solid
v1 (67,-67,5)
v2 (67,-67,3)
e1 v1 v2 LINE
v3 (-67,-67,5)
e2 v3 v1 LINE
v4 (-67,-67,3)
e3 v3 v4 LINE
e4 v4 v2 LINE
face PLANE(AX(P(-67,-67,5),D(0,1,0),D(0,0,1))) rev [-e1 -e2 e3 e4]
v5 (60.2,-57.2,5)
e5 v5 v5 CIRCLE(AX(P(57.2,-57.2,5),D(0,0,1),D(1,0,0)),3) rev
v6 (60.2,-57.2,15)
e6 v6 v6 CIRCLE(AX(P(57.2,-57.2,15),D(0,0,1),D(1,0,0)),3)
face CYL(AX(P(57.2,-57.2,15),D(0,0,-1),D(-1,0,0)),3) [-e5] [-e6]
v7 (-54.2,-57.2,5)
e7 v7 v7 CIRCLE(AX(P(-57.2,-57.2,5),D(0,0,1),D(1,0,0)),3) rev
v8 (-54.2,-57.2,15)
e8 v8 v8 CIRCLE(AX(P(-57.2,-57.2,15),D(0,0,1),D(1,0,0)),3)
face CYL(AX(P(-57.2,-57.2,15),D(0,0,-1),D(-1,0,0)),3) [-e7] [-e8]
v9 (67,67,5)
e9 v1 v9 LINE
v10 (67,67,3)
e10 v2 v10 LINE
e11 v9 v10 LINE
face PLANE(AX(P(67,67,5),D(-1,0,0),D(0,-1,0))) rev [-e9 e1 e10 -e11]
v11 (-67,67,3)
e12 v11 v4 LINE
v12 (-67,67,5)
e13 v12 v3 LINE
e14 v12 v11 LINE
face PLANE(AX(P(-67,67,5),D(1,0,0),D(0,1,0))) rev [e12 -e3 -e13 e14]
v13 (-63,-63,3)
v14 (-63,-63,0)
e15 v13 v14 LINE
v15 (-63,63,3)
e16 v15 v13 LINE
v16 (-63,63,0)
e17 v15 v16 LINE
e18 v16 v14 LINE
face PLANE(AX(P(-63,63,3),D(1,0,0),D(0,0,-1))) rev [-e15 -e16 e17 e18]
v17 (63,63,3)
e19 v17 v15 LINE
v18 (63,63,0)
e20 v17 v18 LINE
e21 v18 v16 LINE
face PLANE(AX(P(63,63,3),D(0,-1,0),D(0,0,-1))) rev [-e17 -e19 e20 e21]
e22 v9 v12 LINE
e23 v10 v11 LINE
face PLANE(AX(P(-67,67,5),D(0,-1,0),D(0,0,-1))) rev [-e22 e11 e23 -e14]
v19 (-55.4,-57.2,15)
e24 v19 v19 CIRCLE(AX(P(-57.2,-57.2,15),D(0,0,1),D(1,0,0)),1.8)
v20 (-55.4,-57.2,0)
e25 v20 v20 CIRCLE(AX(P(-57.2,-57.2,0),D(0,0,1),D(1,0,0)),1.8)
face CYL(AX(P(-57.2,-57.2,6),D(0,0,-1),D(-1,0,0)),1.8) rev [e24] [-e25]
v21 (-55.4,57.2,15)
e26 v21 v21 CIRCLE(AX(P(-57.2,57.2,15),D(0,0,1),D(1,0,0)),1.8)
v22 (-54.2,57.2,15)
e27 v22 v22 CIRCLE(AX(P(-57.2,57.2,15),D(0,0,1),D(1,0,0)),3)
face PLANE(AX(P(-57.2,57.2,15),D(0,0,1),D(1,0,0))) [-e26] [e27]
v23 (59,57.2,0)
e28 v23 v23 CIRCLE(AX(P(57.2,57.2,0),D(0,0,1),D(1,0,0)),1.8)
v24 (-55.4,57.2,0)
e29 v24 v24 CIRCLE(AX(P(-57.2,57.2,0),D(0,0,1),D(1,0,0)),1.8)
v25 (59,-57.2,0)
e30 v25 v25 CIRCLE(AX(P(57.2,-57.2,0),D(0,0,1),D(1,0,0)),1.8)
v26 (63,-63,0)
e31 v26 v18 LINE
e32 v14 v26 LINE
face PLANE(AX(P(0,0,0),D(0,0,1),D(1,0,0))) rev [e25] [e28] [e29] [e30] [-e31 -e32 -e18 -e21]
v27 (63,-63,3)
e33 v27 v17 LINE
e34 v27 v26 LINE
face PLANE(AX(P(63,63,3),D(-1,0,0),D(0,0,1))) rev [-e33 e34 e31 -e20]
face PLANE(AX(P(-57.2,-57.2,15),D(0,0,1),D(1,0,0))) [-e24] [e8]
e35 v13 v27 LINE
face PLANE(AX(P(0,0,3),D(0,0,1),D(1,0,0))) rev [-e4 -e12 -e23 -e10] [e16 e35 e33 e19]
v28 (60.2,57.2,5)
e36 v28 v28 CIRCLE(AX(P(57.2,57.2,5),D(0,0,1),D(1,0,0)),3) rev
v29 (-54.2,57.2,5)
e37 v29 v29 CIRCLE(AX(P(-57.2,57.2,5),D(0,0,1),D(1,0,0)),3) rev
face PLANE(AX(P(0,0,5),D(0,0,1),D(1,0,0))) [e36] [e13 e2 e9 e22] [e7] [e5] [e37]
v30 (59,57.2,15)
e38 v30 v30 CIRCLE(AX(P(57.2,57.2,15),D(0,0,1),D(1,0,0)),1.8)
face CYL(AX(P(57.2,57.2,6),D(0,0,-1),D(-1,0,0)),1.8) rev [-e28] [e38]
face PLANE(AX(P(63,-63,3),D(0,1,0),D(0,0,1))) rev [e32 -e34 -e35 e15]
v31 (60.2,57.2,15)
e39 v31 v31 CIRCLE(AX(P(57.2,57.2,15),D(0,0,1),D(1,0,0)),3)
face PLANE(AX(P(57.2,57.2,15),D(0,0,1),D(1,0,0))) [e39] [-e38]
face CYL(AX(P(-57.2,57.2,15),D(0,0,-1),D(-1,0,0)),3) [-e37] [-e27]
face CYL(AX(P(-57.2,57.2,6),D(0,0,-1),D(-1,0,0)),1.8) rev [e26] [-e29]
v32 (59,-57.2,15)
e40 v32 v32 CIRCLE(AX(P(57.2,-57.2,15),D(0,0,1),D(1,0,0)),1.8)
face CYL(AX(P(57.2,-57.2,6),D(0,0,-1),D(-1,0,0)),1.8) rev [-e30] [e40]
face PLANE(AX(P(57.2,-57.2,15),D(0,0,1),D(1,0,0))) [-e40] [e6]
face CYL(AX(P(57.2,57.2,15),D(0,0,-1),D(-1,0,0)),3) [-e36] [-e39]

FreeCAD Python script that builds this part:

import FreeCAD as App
import Part
import Sketcher

doc = App.newDocument("Part")
body = doc.addObject("PartDesign::Body", "Body")

# Sketch on XY plane
sketch1 = doc.addObject("Sketcher::SketchObject", "Sketch")
body.addObject(sketch1)
sketch1.AttachmentSupport = (doc.XY_Plane, [""])
sketch1.MapMode = "FlatFace"
sketch1.addGeometry(Part.LineSegment(App.Vector(-67, 67, 0), App.Vector(-67, -67, 0)), False)
sketch1.addGeometry(Part.LineSegment(App.Vector(-67, -67, 0), App.Vector(67, -67, 0)), False)
sketch1.addGeometry(Part.LineSegment(App.Vector(67, -67, 0), App.Vector(67, 67, 0)), False)
sketch1.addGeometry(Part.LineSegment(App.Vector(67, 67, 0), App.Vector(-67, 67, 0)), False)
sketch1.addConstraint(Sketcher.Constraint("Coincident", 0, 2, 1, 1))
sketch1.addConstraint(Sketcher.Constraint("Coincident", 1, 2, 2, 1))
sketch1.addConstraint(Sketcher.Constraint("Coincident", 2, 2, 3, 1))
sketch1.addConstraint(Sketcher.Constraint("Coincident", 3, 2, 0, 1))
sketch1.addConstraint(Sketcher.Constraint("Vertical", 0))
sketch1.addConstraint(Sketcher.Constraint("Horizontal", 1))
sketch1.addConstraint(Sketcher.Constraint("Vertical", 2))
sketch1.addConstraint(Sketcher.Constraint("Horizontal", 3))
sketch1.addConstraint(Sketcher.Constraint("Symmetric", 0, 2, 2, 2, -1, 1))
sketch1.addConstraint(Sketcher.Constraint("Equal", 3, 0))
sketch1.addConstraint(Sketcher.Constraint("DistanceX", 1, 1, 1, 2, 134.0))
pad1 = doc.addObject("PartDesign::Pad", "Pad")
body.addObject(pad1)
pad1.Profile = sketch1
pad1.Length = 5

# Sketch on XY plane
sketch2 = doc.addObject("Sketcher::SketchObject", "Sketch001")
body.addObject(sketch2)
sketch2.AttachmentSupport = (doc.XY_Plane, [""])
sketch2.MapMode = "FlatFace"
sketch2.addGeometry(Part.LineSegment(App.Vector(-67, 67, 0), App.Vector(-67, -67, 0)), False)
sketch2.addGeometry(Part.LineSegment(App.Vector(-67, -67, 0), App.Vector(67, -67, 0)), False)
sketch2.addGeometry(Part.LineSegment(App.Vector(67, -67, 0), App.Vector(67, 67, 0)), False)
sketch2.addGeometry(Part.LineSegment(App.Vector(67, 67, 0), App.Vector(-67, 67, 0)), False)
sketch2.addGeometry(Part.LineSegment(App.Vector(63, -63, 0), App.Vector(-63, -63, 0)), False)
sketch2.addGeometry(Part.LineSegment(App.Vector(-63, -63, 0), App.Vector(-63, 63, 0)), False)
sketch2.addGeometry(Part.LineSegment(App.Vector(-63, 63, 0), App.Vector(63, 63, 0)), False)
sketch2.addGeometry(Part.LineSegment(App.Vector(63, 63, 0), App.Vector(63, -63, 0)), False)
sketch2.addConstraint(Sketcher.Constraint("Coincident", 0, 2, 1, 1))
sketch2.addConstraint(Sketcher.Constraint("Coincident", 1, 2, 2, 1))
sketch2.addConstraint(Sketcher.Constraint("Coincident", 2, 2, 3, 1))
sketch2.addConstraint(Sketcher.Constraint("Coincident", 3, 2, 0, 1))
sketch2.addConstraint(Sketcher.Constraint("Coincident", 4, 2, 5, 1))
sketch2.addConstraint(Sketcher.Constraint("Coincident", 5, 2, 6, 1))
sketch2.addConstraint(Sketcher.Constraint("Coincident", 6, 2, 7, 1))
sketch2.addConstraint(Sketcher.Constraint("Coincident", 7, 2, 4, 1))
sketch2.addConstraint(Sketcher.Constraint("Vertical", 0))
sketch2.addConstraint(Sketcher.Constraint("Horizontal", 1))
sketch2.addConstraint(Sketcher.Constraint("Vertical", 2))
sketch2.addConstraint(Sketcher.Constraint("Horizontal", 3))
sketch2.addConstraint(Sketcher.Constraint("Horizontal", 4))
sketch2.addConstraint(Sketcher.Constraint("Vertical", 5))
sketch2.addConstraint(Sketcher.Constraint("Horizontal", 6))
sketch2.addConstraint(Sketcher.Constraint("Vertical", 7))
sketch2.addConstraint(Sketcher.Constraint("Symmetric", 0, 2, 2, 2, -1, 1))
sketch2.addConstraint(Sketcher.Constraint("Symmetric", 4, 2, 6, 2, -1, 1))
sketch2.addConstraint(Sketcher.Constraint("Equal", 3, 0))
sketch2.addConstraint(Sketcher.Constraint("Equal", 6, 5))
sketch2.addConstraint(Sketcher.Constraint("DistanceX", 1, 1, 1, 2, 134.0))
sketch2.addConstraint(Sketcher.Constraint("DistanceX", 4, 2, 4, 1, 126.0))
pocket1 = doc.addObject("PartDesign::Pocket", "Pocket")
body.addObject(pocket1)
pocket1.Profile = sketch2
pocket1.Length = 3
pocket1.Reversed = True

# Sketch on XY plane
sketch3 = doc.addObject("Sketcher::SketchObject", "Sketch002")
body.addObject(sketch3)
sketch3.AttachmentSupport = (doc.XY_Plane, [""])
sketch3.MapMode = "FlatFace"
sketch3.addGeometry(Part.Circle(App.Vector(57.2, 57.2, 0), App.Vector(0, 0, 1), 1.8), False)
sketch3.addGeometry(Part.Circle(App.Vector(57.2, -57.2, 0), App.Vector(0, 0, 1), 1.8), False)
sketch3.addGeometry(Part.Circle(App.Vector(-57.2, -57.2, 0), App.Vector(0, 0, 1), 1.8), False)
sketch3.addGeometry(Part.Circle(App.Vector(-57.2, 57.2, 0), App.Vector(0, 0, 1), 1.8), False)
sketch3.addConstraint(Sketcher.Constraint("Equal", 0, 1))
sketch3.addConstraint(Sketcher.Constraint("Equal", 1, 2))
sketch3.addConstraint(Sketcher.Constraint("Equal", 2, 3))
sketch3.addConstraint(Sketcher.Constraint("Symmetric", 0, 3, 2, 3, -1, 1))
sketch3.addConstraint(Sketcher.Constraint("Symmetric", 1, 3, 3, 3, -1, 1))
sketch3.addConstraint(Sketcher.Constraint("Symmetric", 1, 3, 2, 3, -2))
sketch3.addConstraint(Sketcher.Constraint("Diameter", 0, 3.6))
sketch3.addConstraint(Sketcher.Constraint("DistanceX", -1, 1, 0, 3, 57.2))
sketch3.addConstraint(Sketcher.Constraint("DistanceY", -1, 1, 0, 3, 57.2))
pocket2 = doc.addObject("PartDesign::Pocket", "Pocket001")
body.addObject(pocket2)
pocket2.Profile = sketch3
pocket2.Length = 6
pocket2.Reversed = True

# Sketch on XY plane
sketch4 = doc.addObject("Sketcher::SketchObject", "Sketch003")
body.addObject(sketch4)
sketch4.AttachmentSupport = (doc.XY_Plane, [""])
sketch4.MapMode = "FlatFace"
sketch4.addGeometry(Part.Circle(App.Vector(57.2, 57.2, 0), App.Vector(0, 0, 1), 3), False)
sketch4.addGeometry(Part.Circle(App.Vector(57.2, 57.2, 0), App.Vector(0, 0, 1), 1.8), False)
sketch4.addConstraint(Sketcher.Constraint("Coincident", 1, 3, 0, 3))
sketch4.addConstraint(Sketcher.Constraint("Diameter", 0, 6.0))
sketch4.addConstraint(Sketcher.Constraint("Diameter", 1, 3.6))
sketch4.addConstraint(Sketcher.Constraint("DistanceX", -1, 1, 0, 3, 57.2))
sketch4.addConstraint(Sketcher.Constraint("DistanceY", -1, 1, 0, 3, 57.2))
pad2 = doc.addObject("PartDesign::Pad", "Pad001")
body.addObject(pad2)
pad2.Profile = sketch4
pad2.Length = 15

# Sketch on XY plane
sketch5 = doc.addObject("Sketcher::SketchObject", "Sketch004")
body.addObject(sketch5)
sketch5.AttachmentSupport = (doc.XY_Plane, [""])
sketch5.MapMode = "FlatFace"
sketch5.addGeometry(Part.Circle(App.Vector(-57.2, 57.2, 0), App.Vector(0, 0, 1), 3), False)
sketch5.addGeometry(Part.Circle(App.Vector(-57.2, 57.2, 0), App.Vector(0, 0, 1), 1.8), False)
sketch5.addConstraint(Sketcher.Constraint("Coincident", 1, 3, 0, 3))
sketch5.addConstraint(Sketcher.Constraint("Diameter", 0, 6.0))
sketch5.addConstraint(Sketcher.Constraint("Diameter", 1, 3.6))
sketch5.addConstraint(Sketcher.Constraint("DistanceX", 0, 3, -1, 1, 57.2))
sketch5.addConstraint(Sketcher.Constraint("DistanceY", -1, 1, 0, 3, 57.2))
pad3 = doc.addObject("PartDesign::Pad", "Pad002")
body.addObject(pad3)
pad3.Profile = sketch5
pad3.Length = 15

# Sketch on XY plane
sketch6 = doc.addObject("Sketcher::SketchObject", "Sketch005")
body.addObject(sketch6)
sketch6.AttachmentSupport = (doc.XY_Plane, [""])
sketch6.MapMode = "FlatFace"
sketch6.addGeometry(Part.Circle(App.Vector(-57.2, -57.2, 0), App.Vector(0, 0, 1), 3), False)
sketch6.addGeometry(Part.Circle(App.Vector(-57.2, -57.2, 0), App.Vector(0, 0, 1), 1.8), False)
sketch6.addConstraint(Sketcher.Constraint("Coincident", 1, 3, 0, 3))
sketch6.addConstraint(Sketcher.Constraint("Diameter", 0, 6.0))
sketch6.addConstraint(Sketcher.Constraint("Diameter", 1, 3.6))
sketch6.addConstraint(Sketcher.Constraint("DistanceX", 0, 3, -1, 1, 57.2))
sketch6.addConstraint(Sketcher.Constraint("DistanceY", 0, 3, -1, 1, 57.2))
pad4 = doc.addObject("PartDesign::Pad", "Pad003")
body.addObject(pad4)
pad4.Profile = sketch6
pad4.Length = 15

# Sketch on XY plane
sketch7 = doc.addObject("Sketcher::SketchObject", "Sketch006")
body.addObject(sketch7)
sketch7.AttachmentSupport = (doc.XY_Plane, [""])
sketch7.MapMode = "FlatFace"
sketch7.addGeometry(Part.Circle(App.Vector(57.2, -57.2, 0), App.Vector(0, 0, 1), 3), False)
sketch7.addGeometry(Part.Circle(App.Vector(57.2, -57.2, 0), App.Vector(0, 0, 1), 1.8), False)
sketch7.addConstraint(Sketcher.Constraint("Coincident", 1, 3, 0, 3))
sketch7.addConstraint(Sketcher.Constraint("Diameter", 0, 6.0))
sketch7.addConstraint(Sketcher.Constraint("Diameter", 1, 3.6))
sketch7.addConstraint(Sketcher.Constraint("DistanceX", -1, 1, 0, 3, 57.2))
sketch7.addConstraint(Sketcher.Constraint("DistanceY", 0, 3, -1, 1, 57.2))
pad5 = doc.addObject("PartDesign::Pad", "Pad004")
body.addObject(pad5)
pad5.Profile = sketch7
pad5.Length = 15

doc.recompute()
